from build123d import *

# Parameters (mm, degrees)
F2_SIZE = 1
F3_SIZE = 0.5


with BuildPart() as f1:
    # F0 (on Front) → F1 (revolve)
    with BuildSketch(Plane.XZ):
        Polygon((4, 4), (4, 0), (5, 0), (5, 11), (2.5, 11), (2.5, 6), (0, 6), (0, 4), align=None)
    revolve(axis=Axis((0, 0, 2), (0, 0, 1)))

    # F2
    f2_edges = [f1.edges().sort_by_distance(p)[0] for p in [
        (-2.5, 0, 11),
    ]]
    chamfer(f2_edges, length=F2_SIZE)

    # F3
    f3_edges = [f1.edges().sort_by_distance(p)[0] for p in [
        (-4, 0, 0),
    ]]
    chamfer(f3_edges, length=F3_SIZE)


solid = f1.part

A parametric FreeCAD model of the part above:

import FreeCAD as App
import Part
import Sketcher


def edges_at(feature, points):
    """Names of the edges that pass closest to the given points."""
    edges = feature.Shape.Edges
    near = lambda p: min(range(len(edges)), key=lambda i: edges[i].distToShape(Part.Vertex(*p))[0])
    return sorted({f"Edge{near(p) + 1}" for p in points})

doc = App.newDocument("Part")
params = doc.addObject("Spreadsheet::Sheet", "Params")
for row, (alias, value) in enumerate([
    ("sketch1_width", "1 mm"),
    ("sketch1_width2", "4 mm"),
    ("sketch1_height", "11 mm"),
    ("sketch1_height2", "5 mm"),
    ("revolution_angle", "360 deg"),
    ("chamfer_size", "1 mm"),
    ("chamfer2_size", "0.5 mm"),
], start=1):
    params.set(f"A{row}", alias)
    params.set(f"B{row}", "=" + value)
    params.setAlias(f"B{row}", alias)

body = doc.addObject("PartDesign::Body", "Body")

sketch1 = body.newObject("Sketcher::SketchObject", "Sketch")
sketch1.AttachmentSupport = (doc.getObject("XZ_Plane"), [""])
sketch1.MapMode = "FlatFace"
sketch1.addGeometry(Part.LineSegment(App.Vector(4, 4, 0), App.Vector(4, 0, 0)), False)
sketch1.addGeometry(Part.LineSegment(App.Vector(4, 0, 0), App.Vector(5, 0, 0)), False)
sketch1.addGeometry(Part.LineSegment(App.Vector(5, 0, 0), App.Vector(5, 11, 0)), False)
sketch1.addGeometry(Part.LineSegment(App.Vector(5, 11, 0), App.Vector(2.5, 11, 0)), False)
sketch1.addGeometry(Part.LineSegment(App.Vector(2.5, 11, 0), App.Vector(2.5, 6, 0)), False)
sketch1.addGeometry(Part.LineSegment(App.Vector(2.5, 6, 0), App.Vector(0, 6, 0)), False)
sketch1.addGeometry(Part.LineSegment(App.Vector(0, 6, 0), App.Vector(0, 4, 0)), False)
sketch1.addGeometry(Part.LineSegment(App.Vector(0, 4, 0), App.Vector(4, 4, 0)), False)
sketch1.addConstraint(Sketcher.Constraint("Coincident", 0, 2, 1, 1))
sketch1.addConstraint(Sketcher.Constraint("Coincident", 1, 2, 2, 1))
sketch1.addConstraint(Sketcher.Constraint("Coincident", 2, 2, 3, 1))
sketch1.addConstraint(Sketcher.Constraint("Coincident", 3, 2, 4, 1))
sketch1.addConstraint(Sketcher.Constraint("Coincident", 4, 2, 5, 1))
sketch1.addConstraint(Sketcher.Constraint("Coincident", 5, 2, 6, 1))
sketch1.addConstraint(Sketcher.Constraint("Coincident", 6, 2, 7, 1))
sketch1.addConstraint(Sketcher.Constraint("Coincident", 7, 2, 0, 1))
sketch1.addConstraint(Sketcher.Constraint("Vertical", 0))
sketch1.addConstraint(Sketcher.Constraint("Horizontal", 1))
sketch1.addConstraint(Sketcher.Constraint("Vertical", 2))
sketch1.addConstraint(Sketcher.Constraint("Horizontal", 3))
sketch1.addConstraint(Sketcher.Constraint("Vertical", 4))
sketch1.addConstraint(Sketcher.Constraint("Horizontal", 5))
sketch1.addConstraint(Sketcher.Constraint("Vertical", 6))
sketch1.addConstraint(Sketcher.Constraint("Horizontal", 7))
sketch1.addConstraint(Sketcher.Constraint("PointOnObject", 0, 2, -1))
sketch1.addConstraint(Sketcher.Constraint("PointOnObject", 5, 2, -2))
sketch1.addConstraint(Sketcher.Constraint("Equal", 3, 5))
sketch1.addConstraint(Sketcher.Constraint("Equal", 7, 0))
sketch1.addConstraint(Sketcher.Constraint("DistanceX", 1, 1, 1, 2, 1.0))
sketch1.addConstraint(Sketcher.Constraint("DistanceX", 7, 1, 7, 2, 4.0))
sketch1.addConstraint(Sketcher.Constraint("DistanceY", 2, 1, 2, 2, 11.0))
sketch1.addConstraint(Sketcher.Constraint("DistanceY", 4, 2, 4, 1, 5.0))
sketch1.setExpression("Constraints[20]", "Params.sketch1_width")
sketch1.setExpression("Constraints[21]", "Params.sketch1_width2")
sketch1.setExpression("Constraints[22]", "Params.sketch1_height")
sketch1.setExpression("Constraints[23]", "Params.sketch1_height2")
revolution = body.newObject("PartDesign::Revolution", "Revolution")
revolution.Profile = sketch1
revolution.ReferenceAxis = (sketch1, ["V_Axis"])
revolution.setExpression("Angle", "Params.revolution_angle")
doc.recompute()

chamfer = body.newObject("PartDesign::Chamfer", "Chamfer")
chamfer.Base = (revolution, edges_at(revolution, [(-2.5, 0, 11)]))
chamfer.setExpression("Size", "Params.chamfer_size")
doc.recompute()

chamfer2 = body.newObject("PartDesign::Chamfer", "Chamfer001")
chamfer2.Base = (chamfer, edges_at(chamfer, [(-4, 0, 0)]))
chamfer2.setExpression("Size", "Params.chamfer2_size")

doc.recompute()
